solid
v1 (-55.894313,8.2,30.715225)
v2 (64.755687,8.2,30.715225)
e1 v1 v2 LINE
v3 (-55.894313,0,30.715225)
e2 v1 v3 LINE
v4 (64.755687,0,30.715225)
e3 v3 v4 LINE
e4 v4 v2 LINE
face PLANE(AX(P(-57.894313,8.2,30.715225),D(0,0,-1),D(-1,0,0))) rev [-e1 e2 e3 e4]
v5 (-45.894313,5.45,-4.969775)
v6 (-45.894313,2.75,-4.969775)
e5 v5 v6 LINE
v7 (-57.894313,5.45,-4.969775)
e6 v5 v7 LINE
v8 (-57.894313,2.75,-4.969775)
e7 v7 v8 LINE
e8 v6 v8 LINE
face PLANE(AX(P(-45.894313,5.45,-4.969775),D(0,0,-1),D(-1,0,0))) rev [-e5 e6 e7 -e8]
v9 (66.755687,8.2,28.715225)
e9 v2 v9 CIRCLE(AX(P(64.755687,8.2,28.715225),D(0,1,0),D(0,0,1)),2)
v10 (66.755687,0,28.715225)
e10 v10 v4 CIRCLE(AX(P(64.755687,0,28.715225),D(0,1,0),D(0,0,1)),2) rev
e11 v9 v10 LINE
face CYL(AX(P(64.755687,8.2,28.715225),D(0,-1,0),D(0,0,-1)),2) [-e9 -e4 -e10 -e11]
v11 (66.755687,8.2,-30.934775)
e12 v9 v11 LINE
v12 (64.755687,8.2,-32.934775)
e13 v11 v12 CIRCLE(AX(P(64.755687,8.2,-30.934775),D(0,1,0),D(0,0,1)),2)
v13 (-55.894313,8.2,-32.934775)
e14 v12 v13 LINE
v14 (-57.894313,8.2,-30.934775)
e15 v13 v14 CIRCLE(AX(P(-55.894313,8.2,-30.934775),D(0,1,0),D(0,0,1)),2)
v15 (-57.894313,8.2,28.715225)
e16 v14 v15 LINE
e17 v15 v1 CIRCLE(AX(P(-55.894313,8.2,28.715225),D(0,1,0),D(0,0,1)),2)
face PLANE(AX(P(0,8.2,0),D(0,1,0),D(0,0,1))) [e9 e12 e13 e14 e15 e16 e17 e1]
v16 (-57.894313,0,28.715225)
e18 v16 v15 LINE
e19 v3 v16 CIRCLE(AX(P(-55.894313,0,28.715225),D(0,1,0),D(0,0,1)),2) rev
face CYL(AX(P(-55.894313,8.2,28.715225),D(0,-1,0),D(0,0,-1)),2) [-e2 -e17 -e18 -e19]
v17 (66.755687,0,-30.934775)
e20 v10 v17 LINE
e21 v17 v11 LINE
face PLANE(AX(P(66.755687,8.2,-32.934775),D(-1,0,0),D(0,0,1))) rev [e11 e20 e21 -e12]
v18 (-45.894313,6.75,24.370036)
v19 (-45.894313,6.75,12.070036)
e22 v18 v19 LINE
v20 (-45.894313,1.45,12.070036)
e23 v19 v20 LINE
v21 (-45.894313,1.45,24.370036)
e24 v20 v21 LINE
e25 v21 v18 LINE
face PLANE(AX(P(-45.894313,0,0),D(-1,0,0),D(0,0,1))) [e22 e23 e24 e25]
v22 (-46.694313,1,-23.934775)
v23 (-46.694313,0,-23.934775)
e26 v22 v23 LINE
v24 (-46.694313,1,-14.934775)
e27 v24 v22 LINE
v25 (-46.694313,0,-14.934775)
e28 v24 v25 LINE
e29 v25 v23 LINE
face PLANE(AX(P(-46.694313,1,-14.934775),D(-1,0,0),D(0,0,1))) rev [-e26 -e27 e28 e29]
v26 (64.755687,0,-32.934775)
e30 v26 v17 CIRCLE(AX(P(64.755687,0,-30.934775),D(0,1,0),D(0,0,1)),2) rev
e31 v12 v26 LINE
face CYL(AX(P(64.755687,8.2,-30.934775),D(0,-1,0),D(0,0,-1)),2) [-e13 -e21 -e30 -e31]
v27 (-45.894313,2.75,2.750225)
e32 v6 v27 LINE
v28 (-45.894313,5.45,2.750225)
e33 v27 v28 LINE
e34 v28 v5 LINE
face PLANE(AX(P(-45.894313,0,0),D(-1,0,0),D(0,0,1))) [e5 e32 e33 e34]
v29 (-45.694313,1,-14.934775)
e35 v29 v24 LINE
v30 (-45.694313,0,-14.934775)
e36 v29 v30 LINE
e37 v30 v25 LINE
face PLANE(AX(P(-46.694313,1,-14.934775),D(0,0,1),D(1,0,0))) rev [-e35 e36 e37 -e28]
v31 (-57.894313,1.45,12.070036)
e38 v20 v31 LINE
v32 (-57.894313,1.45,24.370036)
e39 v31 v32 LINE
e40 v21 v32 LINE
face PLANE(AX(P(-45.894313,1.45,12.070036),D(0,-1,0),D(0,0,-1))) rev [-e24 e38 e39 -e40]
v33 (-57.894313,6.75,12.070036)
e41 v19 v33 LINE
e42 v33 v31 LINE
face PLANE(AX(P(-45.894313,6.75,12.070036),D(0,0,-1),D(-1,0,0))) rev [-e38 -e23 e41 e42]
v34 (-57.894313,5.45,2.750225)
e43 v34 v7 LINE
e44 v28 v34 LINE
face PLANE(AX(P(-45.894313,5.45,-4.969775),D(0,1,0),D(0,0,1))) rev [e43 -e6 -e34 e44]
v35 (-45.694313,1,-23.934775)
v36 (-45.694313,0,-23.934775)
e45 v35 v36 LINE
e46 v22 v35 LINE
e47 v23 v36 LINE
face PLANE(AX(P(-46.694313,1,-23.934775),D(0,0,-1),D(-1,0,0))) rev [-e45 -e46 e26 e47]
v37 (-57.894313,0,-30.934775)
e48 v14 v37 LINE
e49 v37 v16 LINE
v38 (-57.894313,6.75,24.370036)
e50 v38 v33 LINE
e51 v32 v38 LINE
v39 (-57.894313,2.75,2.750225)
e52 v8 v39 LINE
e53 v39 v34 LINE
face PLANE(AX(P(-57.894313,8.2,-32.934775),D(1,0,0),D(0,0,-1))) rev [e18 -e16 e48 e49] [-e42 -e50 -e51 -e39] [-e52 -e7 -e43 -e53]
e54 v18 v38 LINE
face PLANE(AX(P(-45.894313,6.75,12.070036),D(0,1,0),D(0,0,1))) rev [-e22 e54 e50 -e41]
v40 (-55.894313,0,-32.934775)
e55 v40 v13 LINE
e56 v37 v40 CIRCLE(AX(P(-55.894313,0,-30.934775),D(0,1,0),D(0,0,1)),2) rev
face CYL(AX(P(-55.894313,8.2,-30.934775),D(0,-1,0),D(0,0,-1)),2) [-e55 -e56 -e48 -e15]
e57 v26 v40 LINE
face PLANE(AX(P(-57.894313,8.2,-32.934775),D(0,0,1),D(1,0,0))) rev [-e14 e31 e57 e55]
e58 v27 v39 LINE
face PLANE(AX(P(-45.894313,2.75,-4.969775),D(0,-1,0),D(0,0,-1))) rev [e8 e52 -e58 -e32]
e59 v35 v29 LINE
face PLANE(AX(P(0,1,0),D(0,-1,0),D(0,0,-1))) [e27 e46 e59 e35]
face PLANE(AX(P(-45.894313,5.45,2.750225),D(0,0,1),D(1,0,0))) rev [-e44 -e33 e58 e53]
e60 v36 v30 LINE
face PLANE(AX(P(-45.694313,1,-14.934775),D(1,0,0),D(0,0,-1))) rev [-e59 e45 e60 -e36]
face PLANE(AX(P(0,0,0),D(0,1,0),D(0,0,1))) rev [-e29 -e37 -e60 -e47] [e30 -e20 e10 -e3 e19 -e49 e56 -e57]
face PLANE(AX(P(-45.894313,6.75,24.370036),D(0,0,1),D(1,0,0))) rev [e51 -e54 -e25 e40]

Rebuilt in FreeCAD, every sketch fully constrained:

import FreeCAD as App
import Part
import Sketcher

V = App.Vector
Q = App.Units.Quantity


def edges_at(feature, points):
    """Names of the edges that pass closest to the given points."""
    edges = feature.Shape.Edges
    near = lambda p: min(range(len(edges)), key=lambda i: edges[i].distToShape(Part.Vertex(*p))[0])
    return sorted({f"Edge{near(p) + 1}" for p in points})

doc = App.newDocument("Part")
body = doc.addObject("PartDesign::Body", "Body")

sketch1 = body.newObject("Sketcher::SketchObject", "Sketch")
sketch1.AttachmentSupport = (doc.getObject("XZ_Plane"), [""])
sketch1.MapMode = "FlatFace"
sketch1.addGeometry([
    Part.LineSegment(V(-58, -33, 0), V(-58, 31, 0)),
    Part.LineSegment(V(-58, 31, 0), V(67, 31, 0)),
    Part.LineSegment(V(67, 31, 0), V(67, -33, 0)),
    Part.LineSegment(V(67, -33, 0), V(-58, -33, 0)),
], False)
sketch1.addConstraint([
    Sketcher.Constraint("Coincident", 0, 2, 1, 1),
    Sketcher.Constraint("Coincident", 1, 2, 2, 1),
    Sketcher.Constraint("Coincident", 2, 2, 3, 1),
    Sketcher.Constraint("Coincident", 3, 2, 0, 1),
    Sketcher.Constraint("Vertical", 0),
    Sketcher.Constraint("Horizontal", 1),
    Sketcher.Constraint("Vertical", 2),
    Sketcher.Constraint("Horizontal", 3),
    Sketcher.Constraint("DistanceX", 1, 1, 1, 2, Q("124.65 mm")),
    Sketcher.Constraint("DistanceY", 0, 1, 0, 2, Q("63.65 mm")),
    Sketcher.Constraint("DistanceX", 0, 2, -1, 1, Q("57.894313 mm")),
    Sketcher.Constraint("DistanceY", -1, 1, 0, 2, Q("30.715225 mm")),
])
pad1 = body.newObject("PartDesign::Pad", "Pad")
pad1.Profile = sketch1
pad1.Length = 8.2
pad1.Reversed = True

sketch2 = body.newObject("Sketcher::SketchObject", "Sketch001")
sketch2.AttachmentSupport = (doc.getObject("YZ_Plane"), [""])
sketch2.MapMode = "FlatFace"
sketch2.AttachmentOffset = App.Placement(V(0, 0, -57.894313), App.Rotation())
sketch2.addGeometry([
    Part.LineSegment(V(5.5, -5, 0), V(2.8, -5, 0)),
    Part.LineSegment(V(2.8, -5, 0), V(2.8, 2.8, 0)),
    Part.LineSegment(V(2.8, 2.8, 0), V(5.5, 2.8, 0)),
    Part.LineSegment(V(5.5, 2.8, 0), V(5.5, -5, 0)),
    Part.LineSegment(V(6.8, 12.1, 0), V(1.4, 12.1, 0)),
    Part.LineSegment(V(1.4, 12.1, 0), V(1.4, 24.4, 0)),
    Part.LineSegment(V(1.4, 24.4, 0), V(6.8, 24.4, 0)),
    Part.LineSegment(V(6.8, 24.4, 0), V(6.8, 12.1, 0)),
], False)
sketch2.addConstraint([
    Sketcher.Constraint("Coincident", 0, 2, 1, 1),
    Sketcher.Constraint("Coincident", 1, 2, 2, 1),
    Sketcher.Constraint("Coincident", 2, 2, 3, 1),
    Sketcher.Constraint("Coincident", 3, 2, 0, 1),
    Sketcher.Constraint("Coincident", 4, 2, 5, 1),
    Sketcher.Constraint("Coincident", 5, 2, 6, 1),
    Sketcher.Constraint("Coincident", 6, 2, 7, 1),
    Sketcher.Constraint("Coincident", 7, 2, 4, 1),
    Sketcher.Constraint("Horizontal", 0),
    Sketcher.Constraint("Vertical", 1),
    Sketcher.Constraint("Horizontal", 2),
    Sketcher.Constraint("Vertical", 3),
    Sketcher.Constraint("Horizontal", 4),
    Sketcher.Constraint("Vertical", 5),
    Sketcher.Constraint("Horizontal", 6),
    Sketcher.Constraint("Vertical", 7),
    Sketcher.Constraint("DistanceX", 0, 2, 0, 1, Q("2.7 mm")),
    Sketcher.Constraint("DistanceX", 4, 2, 4, 1, Q("5.3 mm")),
    Sketcher.Constraint("DistanceY", 5, 1, 5, 2, Q("12.3 mm")),
    Sketcher.Constraint("DistanceX", 4, 2, 2, 2, Q("4 mm")),
    Sketcher.Constraint("DistanceY", 1, 1, 1, 2, Q("7.72 mm")),
    Sketcher.Constraint("DistanceX", -1, 1, 0, 2, Q("2.75 mm")),
    Sketcher.Constraint("DistanceY", 1, 2, 4, 2, Q("9.319811 mm")),
    Sketcher.Constraint("DistanceY", 0, 2, -1, 1, Q("4.969775 mm")),
])
pocket1 = body.newObject("PartDesign::Pocket", "Pocket")
pocket1.Profile = sketch2
pocket1.Length = 12
pocket1.Reversed = True

sketch3 = body.newObject("Sketcher::SketchObject", "Sketch002")
sketch3.AttachmentSupport = (doc.getObject("XZ_Plane"), [""])
sketch3.MapMode = "FlatFace"
sketch3.addGeometry([
    Part.LineSegment(V(-46.7, -14.9, 0), V(-46.7, -23.9, 0)),
    Part.LineSegment(V(-46.7, -23.9, 0), V(-45.7, -23.9, 0)),
    Part.LineSegment(V(-45.7, -23.9, 0), V(-45.7, -14.9, 0)),
    Part.LineSegment(V(-45.7, -14.9, 0), V(-46.7, -14.9, 0)),
], False)
sketch3.addConstraint([
    Sketcher.Constraint("Coincident", 0, 2, 1, 1),
    Sketcher.Constraint("Coincident", 1, 2, 2, 1),
    Sketcher.Constraint("Coincident", 2, 2, 3, 1),
    Sketcher.Constraint("Coincident", 3, 2, 0, 1),
    Sketcher.Constraint("Vertical", 0),
    Sketcher.Constraint("Horizontal", 1),
    Sketcher.Constraint("Vertical", 2),
    Sketcher.Constraint("Horizontal", 3),
    Sketcher.Constraint("DistanceX", 1, 1, 1, 2, Q("1 mm")),
    Sketcher.Constraint("DistanceY", 0, 2, 0, 1, Q("9 mm")),
    Sketcher.Constraint("DistanceX", 0, 2, -1, 1, Q("46.694313 mm")),
    Sketcher.Constraint("DistanceY", 0, 2, -1, 1, Q("23.934775 mm")),
])
pocket2 = body.newObject("PartDesign::Pocket", "Pocket001")
pocket2.Profile = sketch3
pocket2.Length = 1
doc.recompute()

fillet = body.newObject("PartDesign::Fillet", "Fillet")
fillet.Base = (pocket2, edges_at(pocket2, [
    (-57.894, 4.1, -32.935),
    (66.756, 4.1, -32.935),
    (66.756, 4.1, 30.715),
    (-57.894, 4.1, 30.715),
]))
fillet.Radius = 2

doc.recompute()
